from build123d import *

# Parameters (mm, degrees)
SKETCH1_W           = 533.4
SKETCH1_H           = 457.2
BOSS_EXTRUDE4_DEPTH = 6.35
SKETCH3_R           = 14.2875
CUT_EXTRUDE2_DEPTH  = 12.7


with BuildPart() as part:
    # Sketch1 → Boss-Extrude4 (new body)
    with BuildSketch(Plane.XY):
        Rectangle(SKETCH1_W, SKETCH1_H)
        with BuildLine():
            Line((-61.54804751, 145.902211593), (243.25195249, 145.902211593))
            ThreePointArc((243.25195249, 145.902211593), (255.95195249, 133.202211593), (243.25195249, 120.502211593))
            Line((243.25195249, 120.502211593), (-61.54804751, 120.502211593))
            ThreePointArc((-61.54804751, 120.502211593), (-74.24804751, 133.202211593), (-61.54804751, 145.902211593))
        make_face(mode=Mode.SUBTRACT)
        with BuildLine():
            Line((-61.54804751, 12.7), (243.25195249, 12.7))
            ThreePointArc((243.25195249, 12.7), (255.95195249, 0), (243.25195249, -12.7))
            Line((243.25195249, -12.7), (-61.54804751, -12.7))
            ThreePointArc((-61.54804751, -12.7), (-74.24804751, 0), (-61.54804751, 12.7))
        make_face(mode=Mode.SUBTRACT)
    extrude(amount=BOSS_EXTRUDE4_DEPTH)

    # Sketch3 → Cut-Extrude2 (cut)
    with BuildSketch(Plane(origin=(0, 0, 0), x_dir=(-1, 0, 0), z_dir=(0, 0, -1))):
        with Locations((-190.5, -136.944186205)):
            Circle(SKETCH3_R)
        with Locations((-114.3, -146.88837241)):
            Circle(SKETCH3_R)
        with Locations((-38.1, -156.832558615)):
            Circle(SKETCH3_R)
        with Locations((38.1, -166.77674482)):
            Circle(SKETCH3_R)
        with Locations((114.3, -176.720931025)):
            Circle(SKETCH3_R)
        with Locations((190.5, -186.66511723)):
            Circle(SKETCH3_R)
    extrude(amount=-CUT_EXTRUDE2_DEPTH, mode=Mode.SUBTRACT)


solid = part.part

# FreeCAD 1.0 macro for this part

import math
import FreeCAD as App
import Part
import Sketcher
from FreeCAD import Vector
Q = App.Units.Quantity

doc = App.newDocument("Part")
body = doc.addObject("PartDesign::Body", "Body")

sketch1 = doc.addObject("Sketcher::SketchObject", "Sketch")
body.addObject(sketch1)
sketch1.AttachmentSupport = (doc.XY_Plane, [""])
sketch1.MapMode = "FlatFace"
sketch1.addGeometry(Part.LineSegment(Vector(-266.7, 228.6, 0), Vector(-266.7, -228.6, 0)), False)
sketch1.addGeometry(Part.LineSegment(Vector(-266.7, -228.6, 0), Vector(266.7, -228.6, 0)), False)
sketch1.addGeometry(Part.LineSegment(Vector(266.7, -228.6, 0), Vector(266.7, 228.6, 0)), False)
sketch1.addGeometry(Part.LineSegment(Vector(266.7, 228.6, 0), Vector(-266.7, 228.6, 0)), False)
sketch1.addGeometry(Part.ArcOfCircle(Part.Circle(Vector(-61.548048, 0, 0), Vector(0, 0, 1), 12.7), math.radians(90), math.radians(270)), False)
sketch1.addGeometry(Part.LineSegment(Vector(-61.548048, 12.7, 0), Vector(243.251952, 12.7, 0)), False)
sketch1.addGeometry(Part.ArcOfCircle(Part.Circle(Vector(243.251952, 0, 0), Vector(0, 0, 1), 12.7), math.radians(-90), math.radians(90)), False)
sketch1.addGeometry(Part.LineSegment(Vector(243.251952, -12.7, 0), Vector(-61.548048, -12.7, 0)), False)
sketch1.addGeometry(Part.ArcOfCircle(Part.Circle(Vector(-61.548048, 133.202212, 0), Vector(0, 0, 1), 12.7), math.radians(90), math.radians(270)), False)
sketch1.addGeometry(Part.LineSegment(Vector(-61.548048, 145.902212, 0), Vector(243.251952, 145.902212, 0)), False)
sketch1.addGeometry(Part.ArcOfCircle(Part.Circle(Vector(243.251952, 133.202212, 0), Vector(0, 0, 1), 12.7), math.radians(-90), math.radians(90)), False)
sketch1.addGeometry(Part.LineSegment(Vector(243.251952, 120.502212, 0), Vector(-61.548048, 120.502212, 0)), False)
sketch1.addConstraint(Sketcher.Constraint("Coincident", 0, 2, 1, 1))
sketch1.addConstraint(Sketcher.Constraint("Coincident", 1, 2, 2, 1))
sketch1.addConstraint(Sketcher.Constraint("Coincident", 2, 2, 3, 1))
sketch1.addConstraint(Sketcher.Constraint("Coincident", 3, 2, 0, 1))
sketch1.addConstraint(Sketcher.Constraint("Tangent", 4, 1, 5, 1))
sketch1.addConstraint(Sketcher.Constraint("Tangent", 5, 2, 6, 2))
sketch1.addConstraint(Sketcher.Constraint("Tangent", 6, 1, 7, 1))
sketch1.addConstraint(Sketcher.Constraint("Tangent", 7, 2, 4, 2))
sketch1.addConstraint(Sketcher.Constraint("Tangent", 8, 1, 9, 1))
sketch1.addConstraint(Sketcher.Constraint("Tangent", 9, 2, 10, 2))
sketch1.addConstraint(Sketcher.Constraint("Tangent", 10, 1, 11, 1))
sketch1.addConstraint(Sketcher.Constraint("Tangent", 11, 2, 8, 2))
sketch1.addConstraint(Sketcher.Constraint("Vertical", 0))
sketch1.addConstraint(Sketcher.Constraint("Horizontal", 1))
sketch1.addConstraint(Sketcher.Constraint("Vertical", 2))
sketch1.addConstraint(Sketcher.Constraint("Horizontal", 3))
sketch1.addConstraint(Sketcher.Constraint("Horizontal", 5))
sketch1.addConstraint(Sketcher.Constraint("Horizontal", 7))
sketch1.addConstraint(Sketcher.Constraint("Horizontal", 9))
sketch1.addConstraint(Sketcher.Constraint("Horizontal", 11))
sketch1.addConstraint(Sketcher.Constraint("Equal", 6, 8))
sketch1.addConstraint(Sketcher.Constraint("Symmetric", 0, 2, 2, 2, -1, 1))
sketch1.addConstraint(Sketcher.Constraint("PointOnObject", 4, 3, -1))
sketch1.addConstraint(Sketcher.Constraint("Vertical", 4, 3, 8, 3))
sketch1.addConstraint(Sketcher.Constraint("Vertical", 6, 3, 10, 3))
sketch1.addConstraint(Sketcher.Constraint("Radius", 4, Q("0.5 in")))
sketch1.addConstraint(Sketcher.Constraint("DistanceX", 1, 1, 1, 2, Q("21 in")))
sketch1.addConstraint(Sketcher.Constraint("DistanceX", 5, 1, 5, 2, Q("12 in")))
sketch1.addConstraint(Sketcher.Constraint("DistanceY", 0, 2, 0, 1, Q("18 in")))
sketch1.addConstraint(Sketcher.Constraint("DistanceY", -1, 1, 8, 3, Q("133.202212 mm")))
sketch1.addConstraint(Sketcher.Constraint("DistanceX", 4, 3, -1, 1, Q("61.548048 mm")))
pad1 = doc.addObject("PartDesign::Pad", "Pad")
body.addObject(pad1)
pad1.Profile = sketch1
pad1.Length = Q("0.25 in")

sketch2 = doc.addObject("Sketcher::SketchObject", "Sketch001")
body.addObject(sketch2)
sketch2.AttachmentSupport = (doc.XY_Plane, [""])
sketch2.MapMode = "FlatFace"
sketch2.addGeometry(Part.Circle(Vector(190.5, -136.944186, 0), Vector(0, 0, 1), 14.2875), False)
sketch2.addGeometry(Part.Circle(Vector(114.3, -146.888372, 0), Vector(0, 0, 1), 14.2875), False)
sketch2.addGeometry(Part.Circle(Vector(38.1, -156.832559, 0), Vector(0, 0, 1), 14.2875), False)
sketch2.addGeometry(Part.Circle(Vector(-38.1, -166.776745, 0), Vector(0, 0, 1), 14.2875), False)
sketch2.addGeometry(Part.Circle(Vector(-114.3, -176.720931, 0), Vector(0, 0, 1), 14.2875), False)
sketch2.addGeometry(Part.Circle(Vector(-190.5, -186.665117, 0), Vector(0, 0, 1), 14.2875), False)
sketch2.addConstraint(Sketcher.Constraint("Equal", 0, 1))
sketch2.addConstraint(Sketcher.Constraint("Equal", 1, 2))
sketch2.addConstraint(Sketcher.Constraint("Equal", 2, 3))
sketch2.addConstraint(Sketcher.Constraint("Equal", 3, 4))
sketch2.addConstraint(Sketcher.Constraint("Equal", 4, 5))
sketch2.addConstraint(Sketcher.Constraint("Diameter", 0, Q("1.125 in")))
sketch2.addConstraint(Sketcher.Constraint("DistanceX", 1, 3, 0, 3, Q("3 in")))
sketch2.addConstraint(Sketcher.Constraint("DistanceX", 2, 3, 1, 3, Q("3 in")))
sketch2.addConstraint(Sketcher.Constraint("DistanceX", 3, 3, 2, 3, Q("3 in")))
sketch2.addConstraint(Sketcher.Constraint("DistanceX", 4, 3, 3, 3, Q("3 in")))
sketch2.addConstraint(Sketcher.Constraint("DistanceX", 5, 3, 4, 3, Q("3 in")))
sketch2.addConstraint(Sketcher.Constraint("DistanceX", -1, 1, 0, 3, Q("7.5 in")))
sketch2.addConstraint(Sketcher.Constraint("DistanceY", 2, 3, -1, 1, Q("156.832559 mm")))
sketch2.addConstraint(Sketcher.Constraint("DistanceY", 4, 3, -1, 1, Q("176.720931 mm")))
sketch2.addConstraint(Sketcher.Constraint("DistanceY", 3, 3, 0, 3, Q("29.832559 mm")))
sketch2.addConstraint(Sketcher.Constraint("DistanceY", 4, 3, 1, 3, Q("29.832559 mm")))
sketch2.addConstraint(Sketcher.Constraint("DistanceY", 5, 3, 2, 3, Q("29.832559 mm")))
sketch2.addConstraint(Sketcher.Constraint("DistanceY", 5, 3, 0, 3, Q("49.720931 mm")))
pocket1 = doc.addObject("PartDesign::Pocket", "Pocket")
body.addObject(pocket1)
pocket1.Profile = sketch2
pocket1.Length = Q("0.5 in")
pocket1.Reversed = True

doc.recompute()
